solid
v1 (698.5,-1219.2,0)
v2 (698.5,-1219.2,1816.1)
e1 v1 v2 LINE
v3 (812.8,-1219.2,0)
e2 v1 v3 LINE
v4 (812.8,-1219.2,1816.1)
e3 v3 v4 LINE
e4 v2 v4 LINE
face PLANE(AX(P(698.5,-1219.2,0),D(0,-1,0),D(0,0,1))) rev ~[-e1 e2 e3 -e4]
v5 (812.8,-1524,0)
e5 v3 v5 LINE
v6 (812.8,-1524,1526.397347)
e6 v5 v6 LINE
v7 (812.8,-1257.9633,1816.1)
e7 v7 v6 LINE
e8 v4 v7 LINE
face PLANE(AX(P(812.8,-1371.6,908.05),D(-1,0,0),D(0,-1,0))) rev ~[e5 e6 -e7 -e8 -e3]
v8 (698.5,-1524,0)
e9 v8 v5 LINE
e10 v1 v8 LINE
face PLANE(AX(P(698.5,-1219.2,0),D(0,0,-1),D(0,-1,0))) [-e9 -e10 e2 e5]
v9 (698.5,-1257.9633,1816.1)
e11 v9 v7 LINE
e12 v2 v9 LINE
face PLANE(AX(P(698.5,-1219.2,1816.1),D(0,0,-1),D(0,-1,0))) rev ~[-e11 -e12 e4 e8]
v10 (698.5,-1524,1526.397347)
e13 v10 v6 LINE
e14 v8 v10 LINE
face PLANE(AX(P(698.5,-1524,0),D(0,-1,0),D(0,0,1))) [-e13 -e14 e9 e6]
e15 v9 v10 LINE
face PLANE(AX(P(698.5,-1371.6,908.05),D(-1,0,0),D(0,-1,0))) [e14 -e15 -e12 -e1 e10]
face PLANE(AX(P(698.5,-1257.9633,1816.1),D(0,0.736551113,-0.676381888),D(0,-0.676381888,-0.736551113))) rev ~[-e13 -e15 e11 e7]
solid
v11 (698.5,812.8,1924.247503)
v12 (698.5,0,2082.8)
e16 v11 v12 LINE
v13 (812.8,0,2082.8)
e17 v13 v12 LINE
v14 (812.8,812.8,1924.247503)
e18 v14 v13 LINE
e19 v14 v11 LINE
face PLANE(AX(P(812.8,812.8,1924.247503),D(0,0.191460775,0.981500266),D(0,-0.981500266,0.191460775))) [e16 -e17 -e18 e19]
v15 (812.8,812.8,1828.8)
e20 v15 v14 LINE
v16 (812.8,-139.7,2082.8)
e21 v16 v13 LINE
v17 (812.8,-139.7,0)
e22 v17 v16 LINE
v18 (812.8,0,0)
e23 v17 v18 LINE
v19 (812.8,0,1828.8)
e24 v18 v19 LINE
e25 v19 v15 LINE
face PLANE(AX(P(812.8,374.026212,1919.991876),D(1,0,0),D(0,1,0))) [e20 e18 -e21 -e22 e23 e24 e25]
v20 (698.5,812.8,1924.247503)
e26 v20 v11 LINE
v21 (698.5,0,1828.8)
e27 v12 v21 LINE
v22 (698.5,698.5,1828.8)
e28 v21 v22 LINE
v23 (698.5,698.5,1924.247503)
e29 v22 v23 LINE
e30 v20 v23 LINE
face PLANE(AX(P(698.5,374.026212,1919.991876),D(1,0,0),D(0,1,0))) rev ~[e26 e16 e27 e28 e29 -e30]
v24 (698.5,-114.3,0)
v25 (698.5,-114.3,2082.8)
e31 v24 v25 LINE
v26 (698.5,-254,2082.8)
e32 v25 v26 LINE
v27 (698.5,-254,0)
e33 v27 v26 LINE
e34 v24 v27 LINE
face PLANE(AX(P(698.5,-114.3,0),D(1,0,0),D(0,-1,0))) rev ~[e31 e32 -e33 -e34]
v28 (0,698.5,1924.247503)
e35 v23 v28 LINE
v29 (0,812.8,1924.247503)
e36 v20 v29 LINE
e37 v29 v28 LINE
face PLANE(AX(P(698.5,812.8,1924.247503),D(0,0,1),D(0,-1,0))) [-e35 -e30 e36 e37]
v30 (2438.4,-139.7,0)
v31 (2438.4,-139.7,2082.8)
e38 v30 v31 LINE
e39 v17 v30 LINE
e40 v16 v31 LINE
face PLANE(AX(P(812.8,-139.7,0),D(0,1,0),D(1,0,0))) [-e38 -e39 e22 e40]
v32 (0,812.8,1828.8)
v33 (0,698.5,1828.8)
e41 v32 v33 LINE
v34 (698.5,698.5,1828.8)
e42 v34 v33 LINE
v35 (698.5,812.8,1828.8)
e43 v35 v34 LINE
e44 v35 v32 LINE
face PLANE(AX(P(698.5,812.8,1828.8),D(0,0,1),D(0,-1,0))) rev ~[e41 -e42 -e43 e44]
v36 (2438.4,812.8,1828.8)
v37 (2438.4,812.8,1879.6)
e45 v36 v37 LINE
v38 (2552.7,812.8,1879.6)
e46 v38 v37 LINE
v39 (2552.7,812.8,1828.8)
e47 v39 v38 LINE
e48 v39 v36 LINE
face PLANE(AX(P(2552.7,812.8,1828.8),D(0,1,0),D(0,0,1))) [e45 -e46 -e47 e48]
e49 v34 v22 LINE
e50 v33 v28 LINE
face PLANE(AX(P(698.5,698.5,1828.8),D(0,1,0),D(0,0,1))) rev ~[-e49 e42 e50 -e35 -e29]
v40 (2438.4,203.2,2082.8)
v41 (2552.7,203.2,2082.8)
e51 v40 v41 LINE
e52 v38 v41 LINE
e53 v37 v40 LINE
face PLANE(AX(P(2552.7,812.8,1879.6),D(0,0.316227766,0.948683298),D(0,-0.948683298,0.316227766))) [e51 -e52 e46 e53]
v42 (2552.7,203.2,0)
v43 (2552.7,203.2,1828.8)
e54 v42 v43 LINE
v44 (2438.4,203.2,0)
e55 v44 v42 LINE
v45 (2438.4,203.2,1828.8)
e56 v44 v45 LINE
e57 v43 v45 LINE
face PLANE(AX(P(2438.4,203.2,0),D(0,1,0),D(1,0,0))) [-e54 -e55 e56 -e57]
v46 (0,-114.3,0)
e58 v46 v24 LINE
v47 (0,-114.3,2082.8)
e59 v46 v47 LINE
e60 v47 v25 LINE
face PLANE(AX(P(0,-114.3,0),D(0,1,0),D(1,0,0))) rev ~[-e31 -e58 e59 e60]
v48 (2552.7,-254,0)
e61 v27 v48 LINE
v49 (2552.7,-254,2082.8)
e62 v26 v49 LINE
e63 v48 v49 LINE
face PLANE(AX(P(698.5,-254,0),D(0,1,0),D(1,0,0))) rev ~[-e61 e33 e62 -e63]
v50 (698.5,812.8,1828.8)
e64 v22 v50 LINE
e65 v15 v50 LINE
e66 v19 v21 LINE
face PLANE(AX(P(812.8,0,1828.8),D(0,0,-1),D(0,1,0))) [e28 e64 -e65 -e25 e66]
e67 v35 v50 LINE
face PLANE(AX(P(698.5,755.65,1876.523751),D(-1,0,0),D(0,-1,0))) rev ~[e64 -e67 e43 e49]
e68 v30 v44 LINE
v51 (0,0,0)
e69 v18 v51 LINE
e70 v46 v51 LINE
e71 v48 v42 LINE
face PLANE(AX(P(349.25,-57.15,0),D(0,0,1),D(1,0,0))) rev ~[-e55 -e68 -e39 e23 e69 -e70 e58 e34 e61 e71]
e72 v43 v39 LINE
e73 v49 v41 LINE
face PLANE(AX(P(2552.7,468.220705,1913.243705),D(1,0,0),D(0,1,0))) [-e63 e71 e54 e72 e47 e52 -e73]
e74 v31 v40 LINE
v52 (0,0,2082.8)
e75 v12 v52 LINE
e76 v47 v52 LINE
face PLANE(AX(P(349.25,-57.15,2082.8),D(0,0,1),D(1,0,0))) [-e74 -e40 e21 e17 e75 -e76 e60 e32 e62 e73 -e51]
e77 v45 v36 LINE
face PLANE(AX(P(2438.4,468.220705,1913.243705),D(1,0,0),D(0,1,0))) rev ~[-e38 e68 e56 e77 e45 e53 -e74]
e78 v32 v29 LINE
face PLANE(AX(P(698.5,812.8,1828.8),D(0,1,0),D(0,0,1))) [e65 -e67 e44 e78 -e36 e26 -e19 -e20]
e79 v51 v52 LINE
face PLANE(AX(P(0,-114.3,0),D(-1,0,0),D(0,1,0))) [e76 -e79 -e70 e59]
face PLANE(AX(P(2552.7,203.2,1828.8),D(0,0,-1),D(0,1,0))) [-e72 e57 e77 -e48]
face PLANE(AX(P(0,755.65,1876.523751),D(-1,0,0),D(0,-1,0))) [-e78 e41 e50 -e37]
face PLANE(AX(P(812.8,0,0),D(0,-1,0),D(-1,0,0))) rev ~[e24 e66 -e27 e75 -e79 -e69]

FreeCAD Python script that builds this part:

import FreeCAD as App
import Part
import Sketcher

V = App.Vector
Q = App.Units.Quantity

doc = App.newDocument("Part")
params = doc.addObject("Spreadsheet::Sheet", "Params")
for row, (alias, value) in enumerate([
    ("sketch1_width", "73 in"),
    ("sketch1_width2", "64 in"),
    ("sketch1_width3", "32 in"),
    ("sketch1_height", "18 in"),
    ("sketch1_width4", "27.5 in"),
    ("pad1_length", "82 in"),
    ("sketch2_width", "24 in"),
    ("sketch2_height", "10 in"),
    ("sketch2_height2", "2 in"),
    ("pad2_length", "4.5 in"),
    ("sketch3_width", "32 in"),
    ("sketch3_height", "10 in"),
    ("pad3_length", "4.5 in"),
    ("sketch4_width", "4.5 in"),
    ("pad4_length", "27.5 in"),
    ("sketch5_width", "12 in"),
    ("sketch5_height", "71.5 in"),
    ("pad5_length", "4.5 in"),
    ("pocket1_length", "8 in"),
], start=1):
    params.set(f"A{row}", alias)
    params.set(f"B{row}", "=" + value)
    params.setAlias(f"B{row}", alias)

body = doc.addObject("PartDesign::Body", "Body")

# Sketch on XY plane
sketch1 = body.newObject("Sketcher::SketchObject", "Sketch")
sketch1.AttachmentSupport = (doc.getObject("XY_Plane"), [""])
sketch1.MapMode = "FlatFace"
sketch1.addGeometry(Part.LineSegment(V(0, 0, 0), V(0, -114.3, 0)), False)
sketch1.addGeometry(Part.LineSegment(V(0, -114.3, 0), V(698.5, -114.3, 0)), False)
sketch1.addGeometry(Part.LineSegment(V(698.5, -114.3, 0), V(698.5, -254, 0)), False)
sketch1.addGeometry(Part.LineSegment(V(698.5, -254, 0), V(2552.7, -254, 0)), False)
sketch1.addGeometry(Part.LineSegment(V(2552.7, -254, 0), V(2552.7, 203.2, 0)), False)
sketch1.addGeometry(Part.LineSegment(V(2552.7, 203.2, 0), V(2438.4, 203.2, 0)), False)
sketch1.addGeometry(Part.LineSegment(V(2438.4, 203.2, 0), V(2438.4, -139.7, 0)), False)
sketch1.addGeometry(Part.LineSegment(V(2438.4, -139.7, 0), V(812.8, -139.7, 0)), False)
sketch1.addGeometry(Part.LineSegment(V(812.8, -139.7, 0), V(812.8, 0, 0)), False)
sketch1.addGeometry(Part.LineSegment(V(812.8, 0, 0), V(0, 0, 0)), False)
sketch1.addConstraint(Sketcher.Constraint("Coincident", 0, 2, 1, 1))
sketch1.addConstraint(Sketcher.Constraint("Coincident", 1, 2, 2, 1))
sketch1.addConstraint(Sketcher.Constraint("Coincident", 2, 2, 3, 1))
sketch1.addConstraint(Sketcher.Constraint("Coincident", 3, 2, 4, 1))
sketch1.addConstraint(Sketcher.Constraint("Coincident", 4, 2, 5, 1))
sketch1.addConstraint(Sketcher.Constraint("Coincident", 5, 2, 6, 1))
sketch1.addConstraint(Sketcher.Constraint("Coincident", 6, 2, 7, 1))
sketch1.addConstraint(Sketcher.Constraint("Coincident", 7, 2, 8, 1))
sketch1.addConstraint(Sketcher.Constraint("Coincident", 8, 2, 9, 1))
sketch1.addConstraint(Sketcher.Constraint("Coincident", 9, 2, 0, 1))
sketch1.addConstraint(Sketcher.Constraint("Vertical", 0))
sketch1.addConstraint(Sketcher.Constraint("Horizontal", 1))
sketch1.addConstraint(Sketcher.Constraint("Vertical", 2))
sketch1.addConstraint(Sketcher.Constraint("Horizontal", 3))
sketch1.addConstraint(Sketcher.Constraint("Vertical", 4))
sketch1.addConstraint(Sketcher.Constraint("Horizontal", 5))
sketch1.addConstraint(Sketcher.Constraint("Vertical", 6))
sketch1.addConstraint(Sketcher.Constraint("Horizontal", 7))
sketch1.addConstraint(Sketcher.Constraint("Vertical", 8))
sketch1.addConstraint(Sketcher.Constraint("Horizontal", 9))
sketch1.addConstraint(Sketcher.Constraint("Coincident", 9, 2, -1, 1))
sketch1.addConstraint(Sketcher.Constraint("Equal", 5, 0))
sketch1.addConstraint(Sketcher.Constraint("Equal", 2, 8))
sketch1.addConstraint(Sketcher.Constraint("DistanceX", 3, 1, 3, 2, Q("73 in")))
sketch1.addConstraint(Sketcher.Constraint("DistanceX", 7, 2, 7, 1, Q("64 in")))
sketch1.addConstraint(Sketcher.Constraint("DistanceX", 9, 2, 9, 1, Q("32 in")))
sketch1.addConstraint(Sketcher.Constraint("DistanceY", 4, 1, 4, 2, Q("18 in")))
sketch1.addConstraint(Sketcher.Constraint("DistanceX", 1, 1, 1, 2, Q("27.5 in")))
sketch1.addConstraint(Sketcher.Constraint("DistanceY", 2, 2, 2, 1, Q("5.5 in")))
sketch1.setExpression("Constraints[23]", "Params.sketch1_width")
sketch1.setExpression("Constraints[24]", "Params.sketch1_width2")
sketch1.setExpression("Constraints[25]", "Params.sketch1_width3")
sketch1.setExpression("Constraints[26]", "Params.sketch1_height")
sketch1.setExpression("Constraints[27]", "Params.sketch1_width4")
pad1 = body.newObject("PartDesign::Pad", "Pad")
pad1.Profile = sketch1
pad1.setExpression("Length", "Params.pad1_length")

# Sketch on YZ plane
sketch2 = body.newObject("Sketcher::SketchObject", "Sketch001")
sketch2.AttachmentSupport = (doc.getObject("YZ_Plane"), [""])
sketch2.MapMode = "FlatFace"
sketch2.AttachmentOffset = App.Placement(V(0, 0, 100.5 * 25.4), App.Rotation())
sketch2.addGeometry(Part.LineSegment(V(203.2, 2082.8, 0), V(203.2, 1828.8, 0)), False)
sketch2.addGeometry(Part.LineSegment(V(203.2, 1828.8, 0), V(812.8, 1828.8, 0)), False)
sketch2.addGeometry(Part.LineSegment(V(812.8, 1828.8, 0), V(812.8, 1879.6, 0)), False)
sketch2.addGeometry(Part.LineSegment(V(812.8, 1879.6, 0), V(203.2, 2082.8, 0)), False)
sketch2.addConstraint(Sketcher.Constraint("Coincident", 0, 2, 1, 1))
sketch2.addConstraint(Sketcher.Constraint("Coincident", 1, 2, 2, 1))
sketch2.addConstraint(Sketcher.Constraint("Coincident", 2, 2, 3, 1))
sketch2.addConstraint(Sketcher.Constraint("Coincident", 3, 2, 0, 1))
sketch2.addConstraint(Sketcher.Constraint("Vertical", 0))
sketch2.addConstraint(Sketcher.Constraint("Horizontal", 1))
sketch2.addConstraint(Sketcher.Constraint("Vertical", 2))
sketch2.addConstraint(Sketcher.Constraint("DistanceX", 1, 1, 1, 2, Q("24 in")))
sketch2.addConstraint(Sketcher.Constraint("DistanceY", 0, 2, 0, 1, Q("10 in")))
sketch2.addConstraint(Sketcher.Constraint("DistanceY", 2, 1, 2, 2, Q("2 in")))
sketch2.addConstraint(Sketcher.Constraint("DistanceX", -1, 1, 0, 2, Q("8 in")))
sketch2.addConstraint(Sketcher.Constraint("DistanceY", -1, 1, 0, 2, Q("72 in")))
sketch2.setExpression("Constraints[7]", "Params.sketch2_width")
sketch2.setExpression("Constraints[8]", "Params.sketch2_height")
sketch2.setExpression("Constraints[9]", "Params.sketch2_height2")
pad2 = body.newObject("PartDesign::Pad", "Pad001")
pad2.Profile = sketch2
pad2.setExpression("Length", "Params.pad2_length")
pad2.Reversed = True

# Sketch on YZ plane
sketch3 = body.newObject("Sketcher::SketchObject", "Sketch002")
sketch3.AttachmentSupport = (doc.getObject("YZ_Plane"), [""])
sketch3.MapMode = "FlatFace"
sketch3.AttachmentOffset = App.Placement(V(0, 0, 32 * 25.4), App.Rotation())
sketch3.addGeometry(Part.LineSegment(V(0, 2082.8, 0), V(0, 1828.8, 0)), False)
sketch3.addGeometry(Part.LineSegment(V(0, 1828.8, 0), V(812.8, 1828.8, 0)), False)
sketch3.addGeometry(Part.LineSegment(V(812.8, 1828.8, 0), V(812.8, 1924.247503, 0)), False)
sketch3.addGeometry(Part.LineSegment(V(812.8, 1924.247503, 0), V(0, 2082.8, 0)), False)
sketch3.addConstraint(Sketcher.Constraint("Coincident", 0, 2, 1, 1))
sketch3.addConstraint(Sketcher.Constraint("Coincident", 1, 2, 2, 1))
sketch3.addConstraint(Sketcher.Constraint("Coincident", 2, 2, 3, 1))
sketch3.addConstraint(Sketcher.Constraint("Coincident", 3, 2, 0, 1))
sketch3.addConstraint(Sketcher.Constraint("Vertical", 0))
sketch3.addConstraint(Sketcher.Constraint("Horizontal", 1))
sketch3.addConstraint(Sketcher.Constraint("Vertical", 2))
sketch3.addConstraint(Sketcher.Constraint("PointOnObject", 0, 2, -2))
sketch3.addConstraint(Sketcher.Constraint("DistanceX", 1, 1, 1, 2, Q("32 in")))
sketch3.addConstraint(Sketcher.Constraint("DistanceY", 0, 2, 0, 1, Q("10 in")))
sketch3.addConstraint(Sketcher.Constraint("DistanceY", -1, 1, 0, 2, Q("72 in")))
sketch3.addConstraint(Sketcher.Constraint("Distance", 3, Q("828.12 mm")))
sketch3.setExpression("Constraints[8]", "Params.sketch3_width")
sketch3.setExpression("Constraints[9]", "Params.sketch3_height")
pad3 = body.newObject("PartDesign::Pad", "Pad002")
pad3.Profile = sketch3
pad3.setExpression("Length", "Params.pad3_length")
pad3.Reversed = True

# Sketch on YZ plane
sketch4 = body.newObject("Sketcher::SketchObject", "Sketch003")
sketch4.AttachmentSupport = (doc.getObject("YZ_Plane"), [""])
sketch4.MapMode = "FlatFace"
sketch4.AttachmentOffset = App.Placement(V(0, 0, 27.5 * 25.4), App.Rotation())
sketch4.addGeometry(Part.LineSegment(V(812.8, 1924.247503, 0), V(812.8, 1828.8, 0)), False)
sketch4.addGeometry(Part.LineSegment(V(812.8, 1828.8, 0), V(698.5, 1828.8, 0)), False)
sketch4.addGeometry(Part.LineSegment(V(698.5, 1828.8, 0), V(698.5, 1924.247503, 0)), False)
sketch4.addGeometry(Part.LineSegment(V(698.5, 1924.247503, 0), V(812.8, 1924.247503, 0)), False)
sketch4.addConstraint(Sketcher.Constraint("Coincident", 0, 2, 1, 1))
sketch4.addConstraint(Sketcher.Constraint("Coincident", 1, 2, 2, 1))
sketch4.addConstraint(Sketcher.Constraint("Coincident", 2, 2, 3, 1))
sketch4.addConstraint(Sketcher.Constraint("Coincident", 3, 2, 0, 1))
sketch4.addConstraint(Sketcher.Constraint("Vertical", 0))
sketch4.addConstraint(Sketcher.Constraint("Horizontal", 1))
sketch4.addConstraint(Sketcher.Constraint("Vertical", 2))
sketch4.addConstraint(Sketcher.Constraint("Horizontal", 3))
sketch4.addConstraint(Sketcher.Constraint("DistanceX", 1, 2, 1, 1, Q("4.5 in")))
sketch4.addConstraint(Sketcher.Constraint("DistanceX", -1, 1, 0, 2, Q("32 in")))
sketch4.addConstraint(Sketcher.Constraint("DistanceY", -1, 1, 0, 2, Q("72 in")))
sketch4.addConstraint(Sketcher.Constraint("DistanceY", 0, 2, 0, 1, Q("95.447503 mm")))
sketch4.setExpression("Constraints[8]", "Params.sketch4_width")
pad4 = body.newObject("PartDesign::Pad", "Pad003")
pad4.Profile = sketch4
pad4.setExpression("Length", "Params.pad4_length")
pad4.Reversed = True
body2 = doc.addObject("PartDesign::Body", "Body001")

# Sketch on YZ plane
sketch5 = body2.newObject("Sketcher::SketchObject", "Sketch004")
sketch5.AttachmentSupport = (doc.getObject("YZ_Plane001"), [""])
sketch5.MapMode = "FlatFace"
sketch5.AttachmentOffset = App.Placement(V(0, 0, 27.5 * 25.4), App.Rotation())
sketch5.addGeometry(Part.LineSegment(V(-1219.2, 1816.1, 0), V(-1219.2, 0, 0)), False)
sketch5.addGeometry(Part.LineSegment(V(-1219.2, 0, 0), V(-1524, 0, 0)), False)
sketch5.addGeometry(Part.LineSegment(V(-1524, 0, 0), V(-1524, 1816.1, 0)), False)
sketch5.addGeometry(Part.LineSegment(V(-1524, 1816.1, 0), V(-1219.2, 1816.1, 0)), False)
sketch5.addConstraint(Sketcher.Constraint("Coincident", 0, 2, 1, 1))
sketch5.addConstraint(Sketcher.Constraint("Coincident", 1, 2, 2, 1))
sketch5.addConstraint(Sketcher.Constraint("Coincident", 2, 2, 3, 1))
sketch5.addConstraint(Sketcher.Constraint("Coincident", 3, 2, 0, 1))
sketch5.addConstraint(Sketcher.Constraint("Vertical", 0))
sketch5.addConstraint(Sketcher.Constraint("Horizontal", 1))
sketch5.addConstraint(Sketcher.Constraint("Vertical", 2))
sketch5.addConstraint(Sketcher.Constraint("Horizontal", 3))
sketch5.addConstraint(Sketcher.Constraint("PointOnObject", 0, 2, -1))
sketch5.addConstraint(Sketcher.Constraint("DistanceX", 1, 2, 1, 1, Q("12 in")))
sketch5.addConstraint(Sketcher.Constraint("DistanceY", 0, 2, 0, 1, Q("71.5 in")))
sketch5.addConstraint(Sketcher.Constraint("DistanceX", 0, 2, -1, 1, Q("48 in")))
sketch5.setExpression("Constraints[9]", "Params.sketch5_width")
sketch5.setExpression("Constraints[10]", "Params.sketch5_height")
pad5 = body2.newObject("PartDesign::Pad", "Pad004")
pad5.Profile = sketch5
pad5.setExpression("Length", "Params.pad5_length")

# Sketch on YZ plane
sketch6 = body2.newObject("Sketcher::SketchObject", "Sketch005")
sketch6.AttachmentSupport = (doc.getObject("YZ_Plane001"), [""])
sketch6.MapMode = "FlatFace"
sketch6.AttachmentOffset = App.Placement(V(0, 0, 27.5 * 25.4), App.Rotation())
sketch6.addGeometry(Part.LineSegment(V(-1524, 1816.1, 0), V(-1257.9633, 1816.1, 0)), False)
sketch6.addGeometry(Part.LineSegment(V(-1257.9633, 1816.1, 0), V(-1524, 1526.397347, 0)), False)
sketch6.addGeometry(Part.LineSegment(V(-1524, 1526.397347, 0), V(-1524, 1816.1, 0)), False)
sketch6.addConstraint(Sketcher.Constraint("Coincident", 0, 2, 1, 1))
sketch6.addConstraint(Sketcher.Constraint("Coincident", 1, 2, 2, 1))
sketch6.addConstraint(Sketcher.Constraint("Coincident", 2, 2, 0, 1))
sketch6.addConstraint(Sketcher.Constraint("Horizontal", 0))
sketch6.addConstraint(Sketcher.Constraint("Vertical", 2))
sketch6.addConstraint(Sketcher.Constraint("DistanceX", 1, 2, -1, 1, Q("60 in")))
sketch6.addConstraint(Sketcher.Constraint("DistanceY", -1, 1, 0, 2, Q("71.5 in")))
sketch6.addConstraint(Sketcher.Constraint("DistanceX", 0, 1, 0, 2, Q("266.0367 mm")))
sketch6.addConstraint(Sketcher.Constraint("DistanceY", 2, 1, 2, 2, Q("289.702653 mm")))
pocket1 = body2.newObject("PartDesign::Pocket", "Pocket")
pocket1.Profile = sketch6
pocket1.setExpression("Length", "Params.pocket1_length")
pocket1.Reversed = True

doc.recompute()
